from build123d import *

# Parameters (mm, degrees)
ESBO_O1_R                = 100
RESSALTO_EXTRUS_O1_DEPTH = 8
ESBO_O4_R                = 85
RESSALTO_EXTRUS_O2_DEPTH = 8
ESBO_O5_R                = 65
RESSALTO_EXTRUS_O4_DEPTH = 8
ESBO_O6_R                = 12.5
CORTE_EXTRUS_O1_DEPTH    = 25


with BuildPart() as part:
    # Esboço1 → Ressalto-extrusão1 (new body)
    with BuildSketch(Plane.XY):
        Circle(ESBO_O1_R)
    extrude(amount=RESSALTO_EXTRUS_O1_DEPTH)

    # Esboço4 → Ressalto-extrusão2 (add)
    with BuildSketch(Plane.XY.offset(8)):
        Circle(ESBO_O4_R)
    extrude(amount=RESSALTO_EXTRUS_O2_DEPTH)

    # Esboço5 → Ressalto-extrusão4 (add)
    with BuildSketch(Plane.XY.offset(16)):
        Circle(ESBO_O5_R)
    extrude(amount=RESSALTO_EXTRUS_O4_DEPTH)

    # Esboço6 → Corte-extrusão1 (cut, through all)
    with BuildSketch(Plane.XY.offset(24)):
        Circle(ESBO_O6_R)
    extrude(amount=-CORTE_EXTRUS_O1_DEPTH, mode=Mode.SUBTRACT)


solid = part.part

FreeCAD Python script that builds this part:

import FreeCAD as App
import Part
import Sketcher

V = App.Vector

doc = App.newDocument("Part")
body = doc.addObject("PartDesign::Body", "Body")

# Sketch on XY plane
sketch1 = body.newObject("Sketcher::SketchObject", "Sketch")
sketch1.AttachmentSupport = (doc.getObject("XY_Plane"), [""])
sketch1.MapMode = "FlatFace"
sketch1.addGeometry(Part.Circle(V(0, 0, 0), V(0, 0, 1), 100), False)
sketch1.addConstraint(Sketcher.Constraint("Coincident", 0, 3, -1, 1))
sketch1.addConstraint(Sketcher.Constraint("Diameter", 0, 200.0))
pad1 = body.newObject("PartDesign::Pad", "Pad")
pad1.Profile = sketch1
pad1.Length = 8

# Sketch on XY plane
sketch2 = body.newObject("Sketcher::SketchObject", "Sketch001")
sketch2.AttachmentSupport = (doc.getObject("XY_Plane"), [""])
sketch2.MapMode = "FlatFace"
sketch2.AttachmentOffset = App.Placement(V(0, 0, 8), App.Rotation())
sketch2.addGeometry(Part.Circle(V(0, 0, 0), V(0, 0, 1), 85), False)
sketch2.addConstraint(Sketcher.Constraint("Coincident", 0, 3, -1, 1))
sketch2.addConstraint(Sketcher.Constraint("Diameter", 0, 170.0))
pad2 = body.newObject("PartDesign::Pad", "Pad001")
pad2.Profile = sketch2
pad2.Length = 8

# Sketch on XY plane
sketch3 = body.newObject("Sketcher::SketchObject", "Sketch002")
sketch3.AttachmentSupport = (doc.getObject("XY_Plane"), [""])
sketch3.MapMode = "FlatFace"
sketch3.AttachmentOffset = App.Placement(V(0, 0, 16), App.Rotation())
sketch3.addGeometry(Part.Circle(V(0, 0, 0), V(0, 0, 1), 65), False)
sketch3.addConstraint(Sketcher.Constraint("Coincident", 0, 3, -1, 1))
sketch3.addConstraint(Sketcher.Constraint("Diameter", 0, 130.0))
pad3 = body.newObject("PartDesign::Pad", "Pad002")
pad3.Profile = sketch3
pad3.Length = 8

# Sketch on XY plane
sketch4 = body.newObject("Sketcher::SketchObject", "Sketch003")
sketch4.AttachmentSupport = (doc.getObject("XY_Plane"), [""])
sketch4.MapMode = "FlatFace"
sketch4.AttachmentOffset = App.Placement(V(0, 0, 24), App.Rotation())
sketch4.addGeometry(Part.Circle(V(0, 0, 0), V(0, 0, 1), 12), False)
sketch4.addConstraint(Sketcher.Constraint("Coincident", 0, 3, -1, 1))
sketch4.addConstraint(Sketcher.Constraint("Diameter", 0, 25.0))
pocket1 = body.newObject("PartDesign::Pocket", "Pocket")
pocket1.Profile = sketch4
pocket1.Type = "ThroughAll"

doc.recompute()
